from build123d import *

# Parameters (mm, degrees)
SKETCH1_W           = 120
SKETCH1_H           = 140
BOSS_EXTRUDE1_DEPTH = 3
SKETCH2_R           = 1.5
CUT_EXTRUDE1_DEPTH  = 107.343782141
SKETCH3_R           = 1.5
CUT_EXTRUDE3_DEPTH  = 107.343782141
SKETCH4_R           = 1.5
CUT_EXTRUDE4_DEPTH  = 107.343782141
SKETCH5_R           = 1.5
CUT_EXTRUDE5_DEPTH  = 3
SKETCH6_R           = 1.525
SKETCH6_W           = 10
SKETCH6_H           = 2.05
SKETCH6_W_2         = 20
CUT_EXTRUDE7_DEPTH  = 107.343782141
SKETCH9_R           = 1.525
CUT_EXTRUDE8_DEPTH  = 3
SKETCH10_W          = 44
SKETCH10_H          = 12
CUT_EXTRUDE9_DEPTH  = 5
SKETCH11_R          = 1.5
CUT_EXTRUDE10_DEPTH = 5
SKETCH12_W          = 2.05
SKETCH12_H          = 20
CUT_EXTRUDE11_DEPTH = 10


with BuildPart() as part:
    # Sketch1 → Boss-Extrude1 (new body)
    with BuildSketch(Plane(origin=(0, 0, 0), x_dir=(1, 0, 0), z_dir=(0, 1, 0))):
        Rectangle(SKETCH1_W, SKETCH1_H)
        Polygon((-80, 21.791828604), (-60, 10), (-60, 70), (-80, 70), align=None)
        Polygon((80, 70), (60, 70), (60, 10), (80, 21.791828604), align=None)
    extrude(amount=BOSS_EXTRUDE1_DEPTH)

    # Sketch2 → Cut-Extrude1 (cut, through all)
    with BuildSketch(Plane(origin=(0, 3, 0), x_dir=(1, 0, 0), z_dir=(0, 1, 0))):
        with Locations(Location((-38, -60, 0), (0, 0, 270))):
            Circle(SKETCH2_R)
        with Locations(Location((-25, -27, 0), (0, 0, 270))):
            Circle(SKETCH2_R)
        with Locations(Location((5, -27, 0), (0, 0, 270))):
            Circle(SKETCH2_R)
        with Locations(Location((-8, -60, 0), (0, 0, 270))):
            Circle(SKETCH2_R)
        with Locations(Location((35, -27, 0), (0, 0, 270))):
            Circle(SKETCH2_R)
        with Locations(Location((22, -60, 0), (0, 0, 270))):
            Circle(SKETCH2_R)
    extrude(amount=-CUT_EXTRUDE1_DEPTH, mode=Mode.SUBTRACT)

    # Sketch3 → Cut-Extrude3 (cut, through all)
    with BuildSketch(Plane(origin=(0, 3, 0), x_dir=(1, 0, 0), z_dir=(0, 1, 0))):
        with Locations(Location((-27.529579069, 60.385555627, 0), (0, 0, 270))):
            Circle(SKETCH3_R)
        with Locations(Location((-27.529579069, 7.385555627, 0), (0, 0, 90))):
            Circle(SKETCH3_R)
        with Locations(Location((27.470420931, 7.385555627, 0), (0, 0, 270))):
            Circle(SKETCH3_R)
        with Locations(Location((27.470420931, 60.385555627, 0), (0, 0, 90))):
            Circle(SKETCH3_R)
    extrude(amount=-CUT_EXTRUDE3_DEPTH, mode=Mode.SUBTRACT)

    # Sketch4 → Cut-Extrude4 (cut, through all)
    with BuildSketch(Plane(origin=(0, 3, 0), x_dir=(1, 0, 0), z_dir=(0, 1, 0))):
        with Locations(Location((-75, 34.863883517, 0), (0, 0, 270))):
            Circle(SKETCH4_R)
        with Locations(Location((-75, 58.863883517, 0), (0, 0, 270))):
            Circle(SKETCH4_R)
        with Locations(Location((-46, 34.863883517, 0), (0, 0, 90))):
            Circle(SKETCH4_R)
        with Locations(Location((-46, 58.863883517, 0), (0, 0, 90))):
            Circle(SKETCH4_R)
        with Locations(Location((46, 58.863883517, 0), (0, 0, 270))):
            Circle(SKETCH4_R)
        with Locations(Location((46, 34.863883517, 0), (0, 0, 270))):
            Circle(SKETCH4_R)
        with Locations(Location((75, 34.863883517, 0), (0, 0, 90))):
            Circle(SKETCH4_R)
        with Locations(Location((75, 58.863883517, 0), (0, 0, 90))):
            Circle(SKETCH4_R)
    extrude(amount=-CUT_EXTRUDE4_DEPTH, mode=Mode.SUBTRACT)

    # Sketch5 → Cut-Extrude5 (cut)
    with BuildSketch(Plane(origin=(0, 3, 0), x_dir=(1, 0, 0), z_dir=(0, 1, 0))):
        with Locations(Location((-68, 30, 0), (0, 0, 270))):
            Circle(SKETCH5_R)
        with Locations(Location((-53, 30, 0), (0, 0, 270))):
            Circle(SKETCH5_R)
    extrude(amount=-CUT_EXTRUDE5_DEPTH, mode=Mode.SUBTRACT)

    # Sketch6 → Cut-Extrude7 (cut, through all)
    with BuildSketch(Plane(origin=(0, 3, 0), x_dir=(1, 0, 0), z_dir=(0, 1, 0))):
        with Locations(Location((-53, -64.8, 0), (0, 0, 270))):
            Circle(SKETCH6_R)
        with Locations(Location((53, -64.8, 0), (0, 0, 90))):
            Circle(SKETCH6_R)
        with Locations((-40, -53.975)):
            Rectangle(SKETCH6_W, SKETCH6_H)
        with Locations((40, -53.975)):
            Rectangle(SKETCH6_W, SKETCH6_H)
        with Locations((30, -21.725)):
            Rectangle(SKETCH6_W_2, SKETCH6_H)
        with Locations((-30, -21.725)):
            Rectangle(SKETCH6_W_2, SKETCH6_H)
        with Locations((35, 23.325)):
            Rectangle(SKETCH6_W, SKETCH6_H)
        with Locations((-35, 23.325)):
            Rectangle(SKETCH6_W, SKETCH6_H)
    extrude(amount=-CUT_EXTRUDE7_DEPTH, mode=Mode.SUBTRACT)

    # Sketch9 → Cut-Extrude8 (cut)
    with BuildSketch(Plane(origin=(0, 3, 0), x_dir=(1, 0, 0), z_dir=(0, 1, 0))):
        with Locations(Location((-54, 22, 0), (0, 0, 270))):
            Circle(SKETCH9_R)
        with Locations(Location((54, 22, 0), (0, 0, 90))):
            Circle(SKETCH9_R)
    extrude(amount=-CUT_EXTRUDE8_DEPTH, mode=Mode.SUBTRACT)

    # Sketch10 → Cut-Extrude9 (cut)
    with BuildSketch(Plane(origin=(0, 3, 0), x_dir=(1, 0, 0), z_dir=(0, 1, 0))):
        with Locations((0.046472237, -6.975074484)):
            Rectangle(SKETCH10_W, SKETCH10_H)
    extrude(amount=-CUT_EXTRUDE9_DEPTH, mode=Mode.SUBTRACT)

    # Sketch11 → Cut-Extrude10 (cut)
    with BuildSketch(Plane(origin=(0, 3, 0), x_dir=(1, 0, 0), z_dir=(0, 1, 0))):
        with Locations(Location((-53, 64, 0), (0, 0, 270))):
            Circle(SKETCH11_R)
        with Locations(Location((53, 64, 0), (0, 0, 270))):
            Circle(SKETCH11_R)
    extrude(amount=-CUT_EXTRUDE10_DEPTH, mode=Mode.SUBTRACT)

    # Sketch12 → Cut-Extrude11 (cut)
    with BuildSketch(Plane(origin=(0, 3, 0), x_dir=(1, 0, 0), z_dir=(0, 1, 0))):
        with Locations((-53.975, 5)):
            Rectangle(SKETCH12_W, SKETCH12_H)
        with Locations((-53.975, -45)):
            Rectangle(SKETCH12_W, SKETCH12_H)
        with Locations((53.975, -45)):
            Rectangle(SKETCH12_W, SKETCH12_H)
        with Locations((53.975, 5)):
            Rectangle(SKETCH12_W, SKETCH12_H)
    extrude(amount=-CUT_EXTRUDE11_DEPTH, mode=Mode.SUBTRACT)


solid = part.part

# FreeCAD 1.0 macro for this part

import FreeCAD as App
import Part
import Sketcher

V = App.Vector
Q = App.Units.Quantity


def add_polygon(sketch, points):
    """Adds a closed chain of lines whose ends are joined by coincident constraints."""
    first, n = sketch.GeometryCount, len(points)
    for a, b in zip(points, points[1:] + points[:1]):
        sketch.addGeometry(Part.LineSegment(App.Vector(*a, 0), App.Vector(*b, 0)), False)
    for i in range(n):
        sketch.addConstraint(Sketcher.Constraint("Coincident", first + i, 2, first + (i + 1) % n, 1))

doc = App.newDocument("Part")
body = doc.addObject("PartDesign::Body", "Body")

sketch1 = body.newObject("Sketcher::SketchObject", "Sketch")
sketch1.AttachmentSupport = (doc.getObject("XZ_Plane"), [""])
sketch1.MapMode = "FlatFace"
add_polygon(sketch1, [(-60, -10), (-60, 70), (60, 70), (60, -10), (80, -22), (80, -70), (-80, -70), (-80, -22)])
sketch1.addConstraint(Sketcher.Constraint("Vertical", 0))
sketch1.addConstraint(Sketcher.Constraint("Horizontal", 1))
sketch1.addConstraint(Sketcher.Constraint("Vertical", 2))
sketch1.addConstraint(Sketcher.Constraint("Vertical", 4))
sketch1.addConstraint(Sketcher.Constraint("Horizontal", 5))
sketch1.addConstraint(Sketcher.Constraint("Vertical", 6))
sketch1.addConstraint(Sketcher.Constraint("Symmetric", 3, 2, 6, 2, -2))
sketch1.addConstraint(Sketcher.Constraint("Symmetric", 2, 2, 7, 2, -2))
sketch1.addConstraint(Sketcher.Constraint("DistanceX", 1, 1, 1, 2, Q("120 mm")))
sketch1.addConstraint(Sketcher.Constraint("DistanceX", 5, 2, 5, 1, Q("160 mm")))
sketch1.addConstraint(Sketcher.Constraint("DistanceY", 0, 1, 0, 2, Q("80 mm")))
sketch1.addConstraint(Sketcher.Constraint("DistanceY", -1, 1, 0, 2, Q("70 mm")))
sketch1.addConstraint(Sketcher.Constraint("DistanceY", 4, 2, -1, 1, Q("70 mm")))
sketch1.addConstraint(Sketcher.Constraint("DistanceY", 4, 2, 4, 1, Q("48.208171 mm")))
pad1 = body.newObject("PartDesign::Pad", "Pad")
pad1.Profile = sketch1
pad1.Length = 3
pad1.Reversed = True

sketch2 = body.newObject("Sketcher::SketchObject", "Sketch001")
sketch2.AttachmentSupport = (doc.getObject("XZ_Plane"), [""])
sketch2.MapMode = "FlatFace"
sketch2.AttachmentOffset = App.Placement(V(0, 0, -3), App.Rotation())
sketch2.addGeometry(Part.Circle(V(-38, 60, 0), V(0, 0, 1), 1.5), False)
sketch2.addGeometry(Part.Circle(V(-25, 27, 0), V(0, 0, 1), 1.5), False)
sketch2.addGeometry(Part.Circle(V(5, 27, 0), V(0, 0, 1), 1.5), False)
sketch2.addGeometry(Part.Circle(V(-8, 60, 0), V(0, 0, 1), 1.5), False)
sketch2.addGeometry(Part.Circle(V(35, 27, 0), V(0, 0, 1), 1.5), False)
sketch2.addGeometry(Part.Circle(V(22, 60, 0), V(0, 0, 1), 1.5), False)
sketch2.addConstraint(Sketcher.Constraint("Equal", 0, 1))
sketch2.addConstraint(Sketcher.Constraint("Equal", 1, 2))
sketch2.addConstraint(Sketcher.Constraint("Equal", 2, 3))
sketch2.addConstraint(Sketcher.Constraint("Equal", 3, 4))
sketch2.addConstraint(Sketcher.Constraint("Equal", 4, 5))
sketch2.addConstraint(Sketcher.Constraint("Horizontal", 1, 3, 2, 3))
sketch2.addConstraint(Sketcher.Constraint("Horizontal", 0, 3, 3, 3))
sketch2.addConstraint(Sketcher.Constraint("Horizontal", 2, 3, 4, 3))
sketch2.addConstraint(Sketcher.Constraint("Horizontal", 3, 3, 5, 3))
sketch2.addConstraint(Sketcher.Constraint("Diameter", 0, Q("3 mm")))
sketch2.addConstraint(Sketcher.Constraint("DistanceX", 0, 3, -1, 1, Q("38 mm")))
sketch2.addConstraint(Sketcher.Constraint("DistanceY", -1, 1, 0, 3, Q("60 mm")))
sketch2.addConstraint(Sketcher.Constraint("DistanceX", 1, 3, -1, 1, Q("25 mm")))
sketch2.addConstraint(Sketcher.Constraint("DistanceY", -1, 1, 1, 3, Q("27 mm")))
sketch2.addConstraint(Sketcher.Constraint("DistanceX", -1, 1, 2, 3, Q("5 mm")))
sketch2.addConstraint(Sketcher.Constraint("DistanceX", 3, 3, -1, 1, Q("8 mm")))
sketch2.addConstraint(Sketcher.Constraint("DistanceX", -1, 1, 4, 3, Q("35 mm")))
sketch2.addConstraint(Sketcher.Constraint("DistanceX", -1, 1, 5, 3, Q("22 mm")))
pocket1 = body.newObject("PartDesign::Pocket", "Pocket")
pocket1.Profile = sketch2
pocket1.Type = "ThroughAll"
pocket1.Reversed = True

sketch3 = body.newObject("Sketcher::SketchObject", "Sketch002")
sketch3.AttachmentSupport = (doc.getObject("XZ_Plane"), [""])
sketch3.MapMode = "FlatFace"
sketch3.AttachmentOffset = App.Placement(V(0, 0, -3), App.Rotation())
sketch3.addGeometry(Part.Circle(V(-27.5, -60.4, 0), V(0, 0, 1), 1.5), False)
sketch3.addGeometry(Part.Circle(V(-27.5, -7.4, 0), V(0, 0, 1), 1.5), False)
sketch3.addGeometry(Part.Circle(V(27.5, -7.4, 0), V(0, 0, 1), 1.5), False)
sketch3.addGeometry(Part.Circle(V(27.5, -60.4, 0), V(0, 0, 1), 1.5), False)
sketch3.addConstraint(Sketcher.Constraint("Equal", 0, 1))
sketch3.addConstraint(Sketcher.Constraint("Equal", 1, 2))
sketch3.addConstraint(Sketcher.Constraint("Equal", 2, 3))
sketch3.addConstraint(Sketcher.Constraint("Horizontal", 1, 3, 2, 3))
sketch3.addConstraint(Sketcher.Constraint("Horizontal", 0, 3, 3, 3))
sketch3.addConstraint(Sketcher.Constraint("Vertical", 0, 3, 1, 3))
sketch3.addConstraint(Sketcher.Constraint("Vertical", 2, 3, 3, 3))
sketch3.addConstraint(Sketcher.Constraint("Diameter", 0, Q("3 mm")))
sketch3.addConstraint(Sketcher.Constraint("DistanceY", 0, 3, 1, 3, Q("53 mm")))
sketch3.addConstraint(Sketcher.Constraint("DistanceX", 1, 3, 2, 3, Q("55 mm")))
sketch3.addConstraint(Sketcher.Constraint("DistanceX", 0, 3, -1, 1, Q("27.529579 mm")))
sketch3.addConstraint(Sketcher.Constraint("DistanceY", 0, 3, -1, 1, Q("60.385556 mm")))
pocket2 = body.newObject("PartDesign::Pocket", "Pocket001")
pocket2.Profile = sketch3
pocket2.Type = "ThroughAll"
pocket2.Reversed = True

sketch4 = body.newObject("Sketcher::SketchObject", "Sketch003")
sketch4.AttachmentSupport = (doc.getObject("XZ_Plane"), [""])
sketch4.MapMode = "FlatFace"
sketch4.AttachmentOffset = App.Placement(V(0, 0, -3), App.Rotation())
sketch4.addGeometry(Part.Circle(V(-75, -34.9, 0), V(0, 0, 1), 1.5), False)
sketch4.addGeometry(Part.Circle(V(-75, -58.9, 0), V(0, 0, 1), 1.5), False)
sketch4.addGeometry(Part.Circle(V(-46, -34.9, 0), V(0, 0, 1), 1.5), False)
sketch4.addGeometry(Part.Circle(V(-46, -58.9, 0), V(0, 0, 1), 1.5), False)
sketch4.addGeometry(Part.Circle(V(46, -58.9, 0), V(0, 0, 1), 1.5), False)
sketch4.addGeometry(Part.Circle(V(46, -34.9, 0), V(0, 0, 1), 1.5), False)
sketch4.addGeometry(Part.Circle(V(75, -34.9, 0), V(0, 0, 1), 1.5), False)
sketch4.addGeometry(Part.Circle(V(75, -58.9, 0), V(0, 0, 1), 1.5), False)
sketch4.addConstraint(Sketcher.Constraint("Equal", 0, 1))
sketch4.addConstraint(Sketcher.Constraint("Equal", 1, 2))
sketch4.addConstraint(Sketcher.Constraint("Equal", 2, 3))
sketch4.addConstraint(Sketcher.Constraint("Equal", 3, 4))
sketch4.addConstraint(Sketcher.Constraint("Equal", 4, 5))
sketch4.addConstraint(Sketcher.Constraint("Equal", 5, 6))
sketch4.addConstraint(Sketcher.Constraint("Equal", 6, 7))
sketch4.addConstraint(Sketcher.Constraint("Symmetric", 3, 3, 4, 3, -2))
sketch4.addConstraint(Sketcher.Constraint("Symmetric", 2, 3, 5, 3, -2))
sketch4.addConstraint(Sketcher.Constraint("Symmetric", 0, 3, 6, 3, -2))
sketch4.addConstraint(Sketcher.Constraint("Symmetric", 1, 3, 7, 3, -2))
sketch4.addConstraint(Sketcher.Constraint("Horizontal", 0, 3, 2, 3))
sketch4.addConstraint(Sketcher.Constraint("Horizontal", 1, 3, 3, 3))
sketch4.addConstraint(Sketcher.Constraint("Vertical", 0, 3, 1, 3))
sketch4.addConstraint(Sketcher.Constraint("Vertical", 2, 3, 3, 3))
sketch4.addConstraint(Sketcher.Constraint("Diameter", 0, Q("3 mm")))
sketch4.addConstraint(Sketcher.Constraint("DistanceX", 0, 3, -1, 1, Q("75 mm")))
sketch4.addConstraint(Sketcher.Constraint("DistanceX", 2, 3, -1, 1, Q("46 mm")))
sketch4.addConstraint(Sketcher.Constraint("DistanceY", 1, 3, 0, 3, Q("24 mm")))
sketch4.addConstraint(Sketcher.Constraint("DistanceY", 0, 3, -1, 1, Q("34.863884 mm")))
pocket3 = body.newObject("PartDesign::Pocket", "Pocket002")
pocket3.Profile = sketch4
pocket3.Type = "ThroughAll"
pocket3.Reversed = True

sketch5 = body.newObject("Sketcher::SketchObject", "Sketch004")
sketch5.AttachmentSupport = (doc.getObject("XZ_Plane"), [""])
sketch5.MapMode = "FlatFace"
sketch5.AttachmentOffset = App.Placement(V(0, 0, -3), App.Rotation())
sketch5.addGeometry(Part.Circle(V(-68, -30, 0), V(0, 0, 1), 1.5), False)
sketch5.addGeometry(Part.Circle(V(-53, -30, 0), V(0, 0, 1), 1.5), False)
sketch5.addConstraint(Sketcher.Constraint("Equal", 0, 1))
sketch5.addConstraint(Sketcher.Constraint("Horizontal", 0, 3, 1, 3))
sketch5.addConstraint(Sketcher.Constraint("Diameter", 0, Q("3 mm")))
sketch5.addConstraint(Sketcher.Constraint("DistanceX", 0, 3, -1, 1, Q("68 mm")))
sketch5.addConstraint(Sketcher.Constraint("DistanceY", 0, 3, -1, 1, Q("30 mm")))
sketch5.addConstraint(Sketcher.Constraint("DistanceX", 1, 3, -1, 1, Q("53 mm")))
pocket4 = body.newObject("PartDesign::Pocket", "Pocket003")
pocket4.Profile = sketch5
pocket4.Length = 3
pocket4.Reversed = True

sketch6 = body.newObject("Sketcher::SketchObject", "Sketch005")
sketch6.AttachmentSupport = (doc.getObject("XZ_Plane"), [""])
sketch6.MapMode = "FlatFace"
sketch6.AttachmentOffset = App.Placement(V(0, 0, -3), App.Rotation())
sketch6.addGeometry(Part.Circle(V(-53, 64.8, 0), V(0, 0, 1), 1.5), False)
sketch6.addGeometry(Part.Circle(V(53, 64.8, 0), V(0, 0, 1), 1.5), False)
add_polygon(sketch6, [(-45, 53), (-45, 55), (-35, 55), (-35, 53)])
add_polygon(sketch6, [(35, 53), (35, 55), (45, 55), (45, 53)])
add_polygon(sketch6, [(20, 20.7), (20, 22.8), (40, 22.8), (40, 20.7)])
add_polygon(sketch6, [(-40, 20.7), (-40, 22.8), (-20, 22.8), (-20, 20.7)])
add_polygon(sketch6, [(30, -24.4), (30, -22.3), (40, -22.3), (40, -24.4)])
add_polygon(sketch6, [(-40, -24.4), (-40, -22.3), (-30, -22.3), (-30, -24.4)])
sketch6.addConstraint(Sketcher.Constraint("Vertical", 2))
sketch6.addConstraint(Sketcher.Constraint("Horizontal", 3))
sketch6.addConstraint(Sketcher.Constraint("Vertical", 4))
sketch6.addConstraint(Sketcher.Constraint("Horizontal", 5))
sketch6.addConstraint(Sketcher.Constraint("Vertical", 6))
sketch6.addConstraint(Sketcher.Constraint("Horizontal", 7))
sketch6.addConstraint(Sketcher.Constraint("Vertical", 8))
sketch6.addConstraint(Sketcher.Constraint("Horizontal", 9))
sketch6.addConstraint(Sketcher.Constraint("Vertical", 10))
sketch6.addConstraint(Sketcher.Constraint("Horizontal", 11))
sketch6.addConstraint(Sketcher.Constraint("Vertical", 12))
sketch6.addConstraint(Sketcher.Constraint("Horizontal", 13))
sketch6.addConstraint(Sketcher.Constraint("Vertical", 14))
sketch6.addConstraint(Sketcher.Constraint("Horizontal", 15))
sketch6.addConstraint(Sketcher.Constraint("Vertical", 16))
sketch6.addConstraint(Sketcher.Constraint("Horizontal", 17))
sketch6.addConstraint(Sketcher.Constraint("Vertical", 18))
sketch6.addConstraint(Sketcher.Constraint("Horizontal", 19))
sketch6.addConstraint(Sketcher.Constraint("Vertical", 20))
sketch6.addConstraint(Sketcher.Constraint("Horizontal", 21))
sketch6.addConstraint(Sketcher.Constraint("Vertical", 22))
sketch6.addConstraint(Sketcher.Constraint("Horizontal", 23))
sketch6.addConstraint(Sketcher.Constraint("Vertical", 24))
sketch6.addConstraint(Sketcher.Constraint("Horizontal", 25))
sketch6.addConstraint(Sketcher.Constraint("Equal", 0, 1))
sketch6.addConstraint(Sketcher.Constraint("Symmetric", 0, 3, 1, 3, -2))
sketch6.addConstraint(Sketcher.Constraint("Symmetric", 3, 2, 6, 2, -2))
sketch6.addConstraint(Sketcher.Constraint("Symmetric", 5, 2, 8, 2, -2))
sketch6.addConstraint(Sketcher.Constraint("Symmetric", 11, 2, 14, 2, -2))
sketch6.addConstraint(Sketcher.Constraint("Symmetric", 13, 2, 16, 2, -2))
sketch6.addConstraint(Sketcher.Constraint("Symmetric", 19, 2, 22, 2, -2))
sketch6.addConstraint(Sketcher.Constraint("Symmetric", 21, 2, 24, 2, -2))
sketch6.addConstraint(Sketcher.Constraint("Vertical", 12, 2, 19, 2))
sketch6.addConstraint(Sketcher.Constraint("Equal", 9, 19))
sketch6.addConstraint(Sketcher.Constraint("Equal", 8, 10))
sketch6.addConstraint(Sketcher.Constraint("Equal", 16, 18))
sketch6.addConstraint(Sketcher.Constraint("Diameter", 0, Q("3.05 mm")))
sketch6.addConstraint(Sketcher.Constraint("DistanceX", 3, 1, 3, 2, Q("10 mm")))
sketch6.addConstraint(Sketcher.Constraint("DistanceX", 11, 1, 11, 2, Q("20 mm")))
sketch6.addConstraint(Sketcher.Constraint("DistanceX", 0, 3, -1, 1, Q("53 mm")))
sketch6.addConstraint(Sketcher.Constraint("DistanceX", 2, 2, -1, 1, Q("45 mm")))
sketch6.addConstraint(Sketcher.Constraint("DistanceY", -1, 1, 2, 2, Q("55 mm")))
sketch6.addConstraint(Sketcher.Constraint("DistanceX", -1, 1, 10, 2, Q("20 mm")))
sketch6.addConstraint(Sketcher.Constraint("DistanceY", 18, 2, 12, 2, Q("43 mm")))
sketch6.addConstraint(Sketcher.Constraint("DistanceY", 2, 1, 2, 2, Q("2.05 mm")))
sketch6.addConstraint(Sketcher.Constraint("DistanceY", -1, 1, 0, 3, Q("64.8 mm")))
sketch6.addConstraint(Sketcher.Constraint("DistanceY", -1, 1, 12, 2, Q("20.7 mm")))
pocket5 = body.newObject("PartDesign::Pocket", "Pocket004")
pocket5.Profile = sketch6
pocket5.Type = "ThroughAll"
pocket5.Reversed = True

sketch7 = body.newObject("Sketcher::SketchObject", "Sketch006")
sketch7.AttachmentSupport = (doc.getObject("XZ_Plane"), [""])
sketch7.MapMode = "FlatFace"
sketch7.AttachmentOffset = App.Placement(V(0, 0, -3), App.Rotation())
sketch7.addGeometry(Part.Circle(V(-54, -22, 0), V(0, 0, 1), 1.5), False)
sketch7.addGeometry(Part.Circle(V(54, -22, 0), V(0, 0, 1), 1.5), False)
sketch7.addConstraint(Sketcher.Constraint("Equal", 0, 1))
sketch7.addConstraint(Sketcher.Constraint("Symmetric", 0, 3, 1, 3, -2))
sketch7.addConstraint(Sketcher.Constraint("Diameter", 0, Q("3.05 mm")))
sketch7.addConstraint(Sketcher.Constraint("DistanceX", 0, 3, -1, 1, Q("54 mm")))
sketch7.addConstraint(Sketcher.Constraint("DistanceY", 0, 3, -1, 1, Q("22 mm")))
pocket6 = body.newObject("PartDesign::Pocket", "Pocket005")
pocket6.Profile = sketch7
pocket6.Length = 3
pocket6.Reversed = True

sketch8 = body.newObject("Sketcher::SketchObject", "Sketch007")
sketch8.AttachmentSupport = (doc.getObject("XZ_Plane"), [""])
sketch8.MapMode = "FlatFace"
sketch8.AttachmentOffset = App.Placement(V(0, 0, -3), App.Rotation())
add_polygon(sketch8, [(-22, 1), (-22, 13), (22, 13), (22, 1)])
sketch8.addConstraint(Sketcher.Constraint("Vertical", 0))
sketch8.addConstraint(Sketcher.Constraint("Horizontal", 1))
sketch8.addConstraint(Sketcher.Constraint("Vertical", 2))
sketch8.addConstraint(Sketcher.Constraint("Horizontal", 3))
sketch8.addConstraint(Sketcher.Constraint("DistanceX", 1, 1, 1, 2, Q("44 mm")))
sketch8.addConstraint(Sketcher.Constraint("DistanceY", 0, 1, 0, 2, Q("12 mm")))
sketch8.addConstraint(Sketcher.Constraint("DistanceX", 0, 2, -1, 1, Q("21.953528 mm")))
sketch8.addConstraint(Sketcher.Constraint("DistanceY", -1, 1, 0, 2, Q("12.975074 mm")))
pocket7 = body.newObject("PartDesign::Pocket", "Pocket006")
pocket7.Profile = sketch8
pocket7.Length = 5
pocket7.Reversed = True

sketch9 = body.newObject("Sketcher::SketchObject", "Sketch008")
sketch9.AttachmentSupport = (doc.getObject("XZ_Plane"), [""])
sketch9.MapMode = "FlatFace"
sketch9.AttachmentOffset = App.Placement(V(0, 0, -3), App.Rotation())
sketch9.addGeometry(Part.Circle(V(-53, -64, 0), V(0, 0, 1), 1.5), False)
sketch9.addGeometry(Part.Circle(V(53, -64, 0), V(0, 0, 1), 1.5), False)
sketch9.addConstraint(Sketcher.Constraint("Equal", 0, 1))
sketch9.addConstraint(Sketcher.Constraint("Symmetric", 0, 3, 1, 3, -2))
sketch9.addConstraint(Sketcher.Constraint("Diameter", 0, Q("3 mm")))
sketch9.addConstraint(Sketcher.Constraint("DistanceX", 0, 3, -1, 1, Q("53 mm")))
sketch9.addConstraint(Sketcher.Constraint("DistanceY", 0, 3, -1, 1, Q("64 mm")))
pocket8 = body.newObject("PartDesign::Pocket", "Pocket007")
pocket8.Profile = sketch9
pocket8.Length = 5
pocket8.Reversed = True

sketch10 = body.newObject("Sketcher::SketchObject", "Sketch009")
sketch10.AttachmentSupport = (doc.getObject("XZ_Plane"), [""])
sketch10.MapMode = "FlatFace"
sketch10.AttachmentOffset = App.Placement(V(0, 0, -3), App.Rotation())
add_polygon(sketch10, [(-55, -15), (-55, 5), (-53, 5), (-53, -15)])
add_polygon(sketch10, [(-55, 35), (-55, 55), (-53, 55), (-53, 35)])
add_polygon(sketch10, [(53, 35), (53, 55), (55, 55), (55, 35)])
add_polygon(sketch10, [(53, -15), (53, 5), (55, 5), (55, -15)])
sketch10.addConstraint(Sketcher.Constraint("Vertical", 0))
sketch10.addConstraint(Sketcher.Constraint("Horizontal", 1))
sketch10.addConstraint(Sketcher.Constraint("Vertical", 2))
sketch10.addConstraint(Sketcher.Constraint("Horizontal", 3))
sketch10.addConstraint(Sketcher.Constraint("Vertical", 4))
sketch10.addConstraint(Sketcher.Constraint("Horizontal", 5))
sketch10.addConstraint(Sketcher.Constraint("Vertical", 6))
sketch10.addConstraint(Sketcher.Constraint("Horizontal", 7))
sketch10.addConstraint(Sketcher.Constraint("Vertical", 8))
sketch10.addConstraint(Sketcher.Constraint("Horizontal", 9))
sketch10.addConstraint(Sketcher.Constraint("Vertical", 10))
sketch10.addConstraint(Sketcher.Constraint("Horizontal", 11))
sketch10.addConstraint(Sketcher.Constraint("Vertical", 12))
sketch10.addConstraint(Sketcher.Constraint("Horizontal", 13))
sketch10.addConstraint(Sketcher.Constraint("Vertical", 14))
sketch10.addConstraint(Sketcher.Constraint("Horizontal", 15))
sketch10.addConstraint(Sketcher.Constraint("Symmetric", 5, 2, 8, 2, -2))
sketch10.addConstraint(Sketcher.Constraint("Symmetric", 7, 2, 10, 2, -2))
sketch10.addConstraint(Sketcher.Constraint("Symmetric", 1, 2, 12, 2, -2))
sketch10.addConstraint(Sketcher.Constraint("Symmetric", 3, 2, 14, 2, -2))
sketch10.addConstraint(Sketcher.Constraint("Vertical", 3, 2, 4, 2))
sketch10.addConstraint(Sketcher.Constraint("Vertical", 2, 2, 5, 2))
sketch10.addConstraint(Sketcher.Constraint("Equal", 2, 4))
sketch10.addConstraint(Sketcher.Constraint("DistanceY", 0, 1, 0, 2, Q("20 mm")))
sketch10.addConstraint(Sketcher.Constraint("DistanceX", 0, 2, -1, 1, Q("55 mm")))
sketch10.addConstraint(Sketcher.Constraint("DistanceY", -1, 1, 0, 2, Q("5 mm")))
sketch10.addConstraint(Sketcher.Constraint("DistanceY", -1, 1, 4, 2, Q("55 mm")))
sketch10.addConstraint(Sketcher.Constraint("DistanceX", 1, 1, 1, 2, Q("2.05 mm")))
pocket9 = body.newObject("PartDesign::Pocket", "Pocket008")
pocket9.Profile = sketch10
pocket9.Length = 10
pocket9.Reversed = True

doc.recompute()
